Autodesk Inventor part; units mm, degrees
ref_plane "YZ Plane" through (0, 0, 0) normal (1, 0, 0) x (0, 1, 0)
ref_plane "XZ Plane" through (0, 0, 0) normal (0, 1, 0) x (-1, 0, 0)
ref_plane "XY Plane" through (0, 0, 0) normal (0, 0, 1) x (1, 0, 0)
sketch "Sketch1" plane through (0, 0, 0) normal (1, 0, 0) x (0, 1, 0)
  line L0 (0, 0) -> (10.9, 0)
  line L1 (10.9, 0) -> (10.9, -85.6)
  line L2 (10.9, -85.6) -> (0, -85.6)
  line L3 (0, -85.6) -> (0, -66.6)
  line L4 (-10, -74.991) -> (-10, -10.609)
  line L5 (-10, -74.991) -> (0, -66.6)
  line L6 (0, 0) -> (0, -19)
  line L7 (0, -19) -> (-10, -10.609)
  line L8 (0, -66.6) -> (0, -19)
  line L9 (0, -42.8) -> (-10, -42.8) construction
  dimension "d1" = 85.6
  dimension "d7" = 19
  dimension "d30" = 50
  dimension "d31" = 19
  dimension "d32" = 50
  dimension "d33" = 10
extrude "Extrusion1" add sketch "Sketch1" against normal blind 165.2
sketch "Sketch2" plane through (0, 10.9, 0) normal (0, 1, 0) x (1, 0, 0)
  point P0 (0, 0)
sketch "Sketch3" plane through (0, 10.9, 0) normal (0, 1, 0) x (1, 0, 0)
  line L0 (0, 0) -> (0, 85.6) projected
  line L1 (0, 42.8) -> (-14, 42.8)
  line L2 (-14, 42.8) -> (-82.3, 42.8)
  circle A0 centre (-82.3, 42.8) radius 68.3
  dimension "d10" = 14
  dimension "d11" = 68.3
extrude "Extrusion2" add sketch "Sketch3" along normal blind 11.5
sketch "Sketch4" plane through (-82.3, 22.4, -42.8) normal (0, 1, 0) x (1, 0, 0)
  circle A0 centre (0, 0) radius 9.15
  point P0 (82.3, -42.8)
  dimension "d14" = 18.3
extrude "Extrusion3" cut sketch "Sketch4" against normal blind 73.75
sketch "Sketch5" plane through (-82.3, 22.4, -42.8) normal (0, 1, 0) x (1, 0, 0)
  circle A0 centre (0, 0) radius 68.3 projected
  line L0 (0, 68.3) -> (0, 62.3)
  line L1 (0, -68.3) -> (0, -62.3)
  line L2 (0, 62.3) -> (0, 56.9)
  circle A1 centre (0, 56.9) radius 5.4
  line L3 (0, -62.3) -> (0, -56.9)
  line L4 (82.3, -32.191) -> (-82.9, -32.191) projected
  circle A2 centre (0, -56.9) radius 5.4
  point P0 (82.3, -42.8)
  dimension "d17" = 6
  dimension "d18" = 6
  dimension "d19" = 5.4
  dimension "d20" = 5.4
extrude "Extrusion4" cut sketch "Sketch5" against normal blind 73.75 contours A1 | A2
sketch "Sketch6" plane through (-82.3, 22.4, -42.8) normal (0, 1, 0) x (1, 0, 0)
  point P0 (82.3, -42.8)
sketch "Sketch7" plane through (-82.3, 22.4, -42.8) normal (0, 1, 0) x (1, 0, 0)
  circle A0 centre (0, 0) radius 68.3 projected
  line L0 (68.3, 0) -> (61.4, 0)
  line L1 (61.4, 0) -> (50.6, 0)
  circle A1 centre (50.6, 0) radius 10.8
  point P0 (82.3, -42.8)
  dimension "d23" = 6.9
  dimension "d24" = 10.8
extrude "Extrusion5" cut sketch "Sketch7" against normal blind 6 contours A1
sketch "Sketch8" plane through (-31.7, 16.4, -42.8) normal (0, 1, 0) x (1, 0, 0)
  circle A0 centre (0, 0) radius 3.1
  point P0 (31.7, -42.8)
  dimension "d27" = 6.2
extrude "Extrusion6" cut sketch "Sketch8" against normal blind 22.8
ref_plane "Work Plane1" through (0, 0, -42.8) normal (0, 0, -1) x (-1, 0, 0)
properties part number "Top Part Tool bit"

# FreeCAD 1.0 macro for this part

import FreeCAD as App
import Part
import Sketcher
Q = App.Units.Quantity


def add_polygon(sketch, points):
    """Adds a closed chain of lines whose ends are joined by coincident constraints."""
    first, n = sketch.GeometryCount, len(points)
    for a, b in zip(points, points[1:] + points[:1]):
        sketch.addGeometry(Part.LineSegment(App.Vector(*a, 0), App.Vector(*b, 0)), False)
    for i in range(n):
        sketch.addConstraint(Sketcher.Constraint("Coincident", first + i, 2, first + (i + 1) % n, 1))

doc = App.newDocument("Part")
body = doc.addObject("PartDesign::Body", "Body")

sketch1 = doc.addObject("Sketcher::SketchObject", "Sketch")
body.addObject(sketch1)
sketch1.AttachmentSupport = (doc.YZ_Plane, [""])
sketch1.MapMode = "FlatFace"
add_polygon(sketch1, [(10.9, 0), (0, 0), (0, -19), (-10, -10.609), (-10, -74.991), (0, -66.6), (0, -85.6), (10.9, -85.6)])
sketch1.addConstraint([
    Sketcher.Constraint("Horizontal", 0),
    Sketcher.Constraint("Vertical", 1),
    Sketcher.Constraint("Vertical", 3),
    Sketcher.Constraint("Vertical", 5),
    Sketcher.Constraint("Horizontal", 6),
    Sketcher.Constraint("Vertical", 7),
    Sketcher.Constraint("Coincident", 0, 2, -1, 1),
    Sketcher.Constraint("PointOnObject", 4, 2, -2),
    Sketcher.Constraint("Equal", 1, 5),
    Sketcher.Constraint("Equal", 2, 4),
    Sketcher.Constraint("DistanceY", 1, 2, 1, 1, Q("19 mm")),
    Sketcher.Constraint("DistanceY", 7, 1, 7, 2, Q("85.6 mm")),
    Sketcher.Constraint("DistanceX", 2, 2, -1, 1, Q("10 mm")),
    Sketcher.Constraint("Angle", 2, Q("140 deg")),
    Sketcher.Constraint("DistanceX", 0, 2, 0, 1, Q("10.9 mm")),
])
pad1 = doc.addObject("PartDesign::Pad", "Pad")
body.addObject(pad1)
pad1.Profile = sketch1
pad1.Length = 165.2
pad1.Reversed = True

sketch2 = doc.addObject("Sketcher::SketchObject", "Sketch001")
body.addObject(sketch2)
sketch2.AttachmentSupport = (doc.XZ_Plane, [""])
sketch2.MapMode = "FlatFace"
sketch2.AttachmentOffset = App.Placement(App.Vector(0, 0, -10.9), App.Rotation())
sketch2.addGeometry(Part.Circle(App.Vector(-82.3, -42.8, 0), App.Vector(0, 0, 1), 68.3), False)
sketch2.addConstraint([
    Sketcher.Constraint("Diameter", 0, Q("136.6 mm")),
    Sketcher.Constraint("DistanceX", 0, 3, -1, 1, Q("82.3 mm")),
    Sketcher.Constraint("DistanceY", 0, 3, -1, 1, Q("42.8 mm")),
])
pad2 = doc.addObject("PartDesign::Pad", "Pad001")
body.addObject(pad2)
pad2.Profile = sketch2
pad2.Length = 11.5
pad2.Reversed = True

sketch3 = doc.addObject("Sketcher::SketchObject", "Sketch002")
body.addObject(sketch3)
sketch3.AttachmentSupport = (doc.XZ_Plane, [""])
sketch3.MapMode = "FlatFace"
sketch3.AttachmentOffset = App.Placement(App.Vector(0, 0, -22.4), App.Rotation())
sketch3.addGeometry(Part.Circle(App.Vector(-82.3, -42.8, 0), App.Vector(0, 0, 1), 9.15), False)
sketch3.addConstraint([
    Sketcher.Constraint("Diameter", 0, Q("18.3 mm")),
    Sketcher.Constraint("DistanceX", 0, 3, -1, 1, Q("82.3 mm")),
    Sketcher.Constraint("DistanceY", 0, 3, -1, 1, Q("42.8 mm")),
])
pocket1 = doc.addObject("PartDesign::Pocket", "Pocket")
body.addObject(pocket1)
pocket1.Profile = sketch3
pocket1.Length = 73.75
pocket1.Reversed = True

sketch4 = doc.addObject("Sketcher::SketchObject", "Sketch003")
body.addObject(sketch4)
sketch4.AttachmentSupport = (doc.XZ_Plane, [""])
sketch4.MapMode = "FlatFace"
sketch4.AttachmentOffset = App.Placement(App.Vector(0, 0, -22.4), App.Rotation())
sketch4.addGeometry([
    Part.Circle(App.Vector(-82.3, -99.7, 0), App.Vector(0, 0, 1), 5.4),
    Part.Circle(App.Vector(-82.3, 14.1, 0), App.Vector(0, 0, 1), 5.4),
], False)
sketch4.addConstraint([
    Sketcher.Constraint("Equal", 0, 1),
    Sketcher.Constraint("Vertical", 0, 3, 1, 3),
    Sketcher.Constraint("Diameter", 0, Q("10.8 mm")),
    Sketcher.Constraint("DistanceX", 0, 3, -1, 1, Q("82.3 mm")),
    Sketcher.Constraint("DistanceY", 0, 3, -1, 1, Q("99.7 mm")),
    Sketcher.Constraint("DistanceY", -1, 1, 1, 3, Q("14.1 mm")),
])
pocket2 = doc.addObject("PartDesign::Pocket", "Pocket001")
body.addObject(pocket2)
pocket2.Profile = sketch4
pocket2.Length = 73.75
pocket2.Reversed = True

sketch5 = doc.addObject("Sketcher::SketchObject", "Sketch004")
body.addObject(sketch5)
sketch5.AttachmentSupport = (doc.XZ_Plane, [""])
sketch5.MapMode = "FlatFace"
sketch5.AttachmentOffset = App.Placement(App.Vector(0, 0, -22.4), App.Rotation())
sketch5.addGeometry(Part.Circle(App.Vector(-31.7, -42.8, 0), App.Vector(0, 0, 1), 10.8), False)
sketch5.addConstraint([
    Sketcher.Constraint("Diameter", 0, Q("21.6 mm")),
    Sketcher.Constraint("DistanceX", 0, 3, -1, 1, Q("31.7 mm")),
    Sketcher.Constraint("DistanceY", 0, 3, -1, 1, Q("42.8 mm")),
])
pocket3 = doc.addObject("PartDesign::Pocket", "Pocket002")
body.addObject(pocket3)
pocket3.Profile = sketch5
pocket3.Length = 6
pocket3.Reversed = True

sketch6 = doc.addObject("Sketcher::SketchObject", "Sketch005")
body.addObject(sketch6)
sketch6.AttachmentSupport = (doc.XZ_Plane, [""])
sketch6.MapMode = "FlatFace"
sketch6.AttachmentOffset = App.Placement(App.Vector(0, 0, -16.4), App.Rotation())
sketch6.addGeometry(Part.Circle(App.Vector(-31.7, -42.8, 0), App.Vector(0, 0, 1), 3.1), False)
sketch6.addConstraint([
    Sketcher.Constraint("Diameter", 0, Q("6.2 mm")),
    Sketcher.Constraint("DistanceX", 0, 3, -1, 1, Q("31.7 mm")),
    Sketcher.Constraint("DistanceY", 0, 3, -1, 1, Q("42.8 mm")),
])
pocket4 = doc.addObject("PartDesign::Pocket", "Pocket003")
body.addObject(pocket4)
pocket4.Profile = sketch6
pocket4.Length = 22.8
pocket4.Reversed = True

doc.recompute()
